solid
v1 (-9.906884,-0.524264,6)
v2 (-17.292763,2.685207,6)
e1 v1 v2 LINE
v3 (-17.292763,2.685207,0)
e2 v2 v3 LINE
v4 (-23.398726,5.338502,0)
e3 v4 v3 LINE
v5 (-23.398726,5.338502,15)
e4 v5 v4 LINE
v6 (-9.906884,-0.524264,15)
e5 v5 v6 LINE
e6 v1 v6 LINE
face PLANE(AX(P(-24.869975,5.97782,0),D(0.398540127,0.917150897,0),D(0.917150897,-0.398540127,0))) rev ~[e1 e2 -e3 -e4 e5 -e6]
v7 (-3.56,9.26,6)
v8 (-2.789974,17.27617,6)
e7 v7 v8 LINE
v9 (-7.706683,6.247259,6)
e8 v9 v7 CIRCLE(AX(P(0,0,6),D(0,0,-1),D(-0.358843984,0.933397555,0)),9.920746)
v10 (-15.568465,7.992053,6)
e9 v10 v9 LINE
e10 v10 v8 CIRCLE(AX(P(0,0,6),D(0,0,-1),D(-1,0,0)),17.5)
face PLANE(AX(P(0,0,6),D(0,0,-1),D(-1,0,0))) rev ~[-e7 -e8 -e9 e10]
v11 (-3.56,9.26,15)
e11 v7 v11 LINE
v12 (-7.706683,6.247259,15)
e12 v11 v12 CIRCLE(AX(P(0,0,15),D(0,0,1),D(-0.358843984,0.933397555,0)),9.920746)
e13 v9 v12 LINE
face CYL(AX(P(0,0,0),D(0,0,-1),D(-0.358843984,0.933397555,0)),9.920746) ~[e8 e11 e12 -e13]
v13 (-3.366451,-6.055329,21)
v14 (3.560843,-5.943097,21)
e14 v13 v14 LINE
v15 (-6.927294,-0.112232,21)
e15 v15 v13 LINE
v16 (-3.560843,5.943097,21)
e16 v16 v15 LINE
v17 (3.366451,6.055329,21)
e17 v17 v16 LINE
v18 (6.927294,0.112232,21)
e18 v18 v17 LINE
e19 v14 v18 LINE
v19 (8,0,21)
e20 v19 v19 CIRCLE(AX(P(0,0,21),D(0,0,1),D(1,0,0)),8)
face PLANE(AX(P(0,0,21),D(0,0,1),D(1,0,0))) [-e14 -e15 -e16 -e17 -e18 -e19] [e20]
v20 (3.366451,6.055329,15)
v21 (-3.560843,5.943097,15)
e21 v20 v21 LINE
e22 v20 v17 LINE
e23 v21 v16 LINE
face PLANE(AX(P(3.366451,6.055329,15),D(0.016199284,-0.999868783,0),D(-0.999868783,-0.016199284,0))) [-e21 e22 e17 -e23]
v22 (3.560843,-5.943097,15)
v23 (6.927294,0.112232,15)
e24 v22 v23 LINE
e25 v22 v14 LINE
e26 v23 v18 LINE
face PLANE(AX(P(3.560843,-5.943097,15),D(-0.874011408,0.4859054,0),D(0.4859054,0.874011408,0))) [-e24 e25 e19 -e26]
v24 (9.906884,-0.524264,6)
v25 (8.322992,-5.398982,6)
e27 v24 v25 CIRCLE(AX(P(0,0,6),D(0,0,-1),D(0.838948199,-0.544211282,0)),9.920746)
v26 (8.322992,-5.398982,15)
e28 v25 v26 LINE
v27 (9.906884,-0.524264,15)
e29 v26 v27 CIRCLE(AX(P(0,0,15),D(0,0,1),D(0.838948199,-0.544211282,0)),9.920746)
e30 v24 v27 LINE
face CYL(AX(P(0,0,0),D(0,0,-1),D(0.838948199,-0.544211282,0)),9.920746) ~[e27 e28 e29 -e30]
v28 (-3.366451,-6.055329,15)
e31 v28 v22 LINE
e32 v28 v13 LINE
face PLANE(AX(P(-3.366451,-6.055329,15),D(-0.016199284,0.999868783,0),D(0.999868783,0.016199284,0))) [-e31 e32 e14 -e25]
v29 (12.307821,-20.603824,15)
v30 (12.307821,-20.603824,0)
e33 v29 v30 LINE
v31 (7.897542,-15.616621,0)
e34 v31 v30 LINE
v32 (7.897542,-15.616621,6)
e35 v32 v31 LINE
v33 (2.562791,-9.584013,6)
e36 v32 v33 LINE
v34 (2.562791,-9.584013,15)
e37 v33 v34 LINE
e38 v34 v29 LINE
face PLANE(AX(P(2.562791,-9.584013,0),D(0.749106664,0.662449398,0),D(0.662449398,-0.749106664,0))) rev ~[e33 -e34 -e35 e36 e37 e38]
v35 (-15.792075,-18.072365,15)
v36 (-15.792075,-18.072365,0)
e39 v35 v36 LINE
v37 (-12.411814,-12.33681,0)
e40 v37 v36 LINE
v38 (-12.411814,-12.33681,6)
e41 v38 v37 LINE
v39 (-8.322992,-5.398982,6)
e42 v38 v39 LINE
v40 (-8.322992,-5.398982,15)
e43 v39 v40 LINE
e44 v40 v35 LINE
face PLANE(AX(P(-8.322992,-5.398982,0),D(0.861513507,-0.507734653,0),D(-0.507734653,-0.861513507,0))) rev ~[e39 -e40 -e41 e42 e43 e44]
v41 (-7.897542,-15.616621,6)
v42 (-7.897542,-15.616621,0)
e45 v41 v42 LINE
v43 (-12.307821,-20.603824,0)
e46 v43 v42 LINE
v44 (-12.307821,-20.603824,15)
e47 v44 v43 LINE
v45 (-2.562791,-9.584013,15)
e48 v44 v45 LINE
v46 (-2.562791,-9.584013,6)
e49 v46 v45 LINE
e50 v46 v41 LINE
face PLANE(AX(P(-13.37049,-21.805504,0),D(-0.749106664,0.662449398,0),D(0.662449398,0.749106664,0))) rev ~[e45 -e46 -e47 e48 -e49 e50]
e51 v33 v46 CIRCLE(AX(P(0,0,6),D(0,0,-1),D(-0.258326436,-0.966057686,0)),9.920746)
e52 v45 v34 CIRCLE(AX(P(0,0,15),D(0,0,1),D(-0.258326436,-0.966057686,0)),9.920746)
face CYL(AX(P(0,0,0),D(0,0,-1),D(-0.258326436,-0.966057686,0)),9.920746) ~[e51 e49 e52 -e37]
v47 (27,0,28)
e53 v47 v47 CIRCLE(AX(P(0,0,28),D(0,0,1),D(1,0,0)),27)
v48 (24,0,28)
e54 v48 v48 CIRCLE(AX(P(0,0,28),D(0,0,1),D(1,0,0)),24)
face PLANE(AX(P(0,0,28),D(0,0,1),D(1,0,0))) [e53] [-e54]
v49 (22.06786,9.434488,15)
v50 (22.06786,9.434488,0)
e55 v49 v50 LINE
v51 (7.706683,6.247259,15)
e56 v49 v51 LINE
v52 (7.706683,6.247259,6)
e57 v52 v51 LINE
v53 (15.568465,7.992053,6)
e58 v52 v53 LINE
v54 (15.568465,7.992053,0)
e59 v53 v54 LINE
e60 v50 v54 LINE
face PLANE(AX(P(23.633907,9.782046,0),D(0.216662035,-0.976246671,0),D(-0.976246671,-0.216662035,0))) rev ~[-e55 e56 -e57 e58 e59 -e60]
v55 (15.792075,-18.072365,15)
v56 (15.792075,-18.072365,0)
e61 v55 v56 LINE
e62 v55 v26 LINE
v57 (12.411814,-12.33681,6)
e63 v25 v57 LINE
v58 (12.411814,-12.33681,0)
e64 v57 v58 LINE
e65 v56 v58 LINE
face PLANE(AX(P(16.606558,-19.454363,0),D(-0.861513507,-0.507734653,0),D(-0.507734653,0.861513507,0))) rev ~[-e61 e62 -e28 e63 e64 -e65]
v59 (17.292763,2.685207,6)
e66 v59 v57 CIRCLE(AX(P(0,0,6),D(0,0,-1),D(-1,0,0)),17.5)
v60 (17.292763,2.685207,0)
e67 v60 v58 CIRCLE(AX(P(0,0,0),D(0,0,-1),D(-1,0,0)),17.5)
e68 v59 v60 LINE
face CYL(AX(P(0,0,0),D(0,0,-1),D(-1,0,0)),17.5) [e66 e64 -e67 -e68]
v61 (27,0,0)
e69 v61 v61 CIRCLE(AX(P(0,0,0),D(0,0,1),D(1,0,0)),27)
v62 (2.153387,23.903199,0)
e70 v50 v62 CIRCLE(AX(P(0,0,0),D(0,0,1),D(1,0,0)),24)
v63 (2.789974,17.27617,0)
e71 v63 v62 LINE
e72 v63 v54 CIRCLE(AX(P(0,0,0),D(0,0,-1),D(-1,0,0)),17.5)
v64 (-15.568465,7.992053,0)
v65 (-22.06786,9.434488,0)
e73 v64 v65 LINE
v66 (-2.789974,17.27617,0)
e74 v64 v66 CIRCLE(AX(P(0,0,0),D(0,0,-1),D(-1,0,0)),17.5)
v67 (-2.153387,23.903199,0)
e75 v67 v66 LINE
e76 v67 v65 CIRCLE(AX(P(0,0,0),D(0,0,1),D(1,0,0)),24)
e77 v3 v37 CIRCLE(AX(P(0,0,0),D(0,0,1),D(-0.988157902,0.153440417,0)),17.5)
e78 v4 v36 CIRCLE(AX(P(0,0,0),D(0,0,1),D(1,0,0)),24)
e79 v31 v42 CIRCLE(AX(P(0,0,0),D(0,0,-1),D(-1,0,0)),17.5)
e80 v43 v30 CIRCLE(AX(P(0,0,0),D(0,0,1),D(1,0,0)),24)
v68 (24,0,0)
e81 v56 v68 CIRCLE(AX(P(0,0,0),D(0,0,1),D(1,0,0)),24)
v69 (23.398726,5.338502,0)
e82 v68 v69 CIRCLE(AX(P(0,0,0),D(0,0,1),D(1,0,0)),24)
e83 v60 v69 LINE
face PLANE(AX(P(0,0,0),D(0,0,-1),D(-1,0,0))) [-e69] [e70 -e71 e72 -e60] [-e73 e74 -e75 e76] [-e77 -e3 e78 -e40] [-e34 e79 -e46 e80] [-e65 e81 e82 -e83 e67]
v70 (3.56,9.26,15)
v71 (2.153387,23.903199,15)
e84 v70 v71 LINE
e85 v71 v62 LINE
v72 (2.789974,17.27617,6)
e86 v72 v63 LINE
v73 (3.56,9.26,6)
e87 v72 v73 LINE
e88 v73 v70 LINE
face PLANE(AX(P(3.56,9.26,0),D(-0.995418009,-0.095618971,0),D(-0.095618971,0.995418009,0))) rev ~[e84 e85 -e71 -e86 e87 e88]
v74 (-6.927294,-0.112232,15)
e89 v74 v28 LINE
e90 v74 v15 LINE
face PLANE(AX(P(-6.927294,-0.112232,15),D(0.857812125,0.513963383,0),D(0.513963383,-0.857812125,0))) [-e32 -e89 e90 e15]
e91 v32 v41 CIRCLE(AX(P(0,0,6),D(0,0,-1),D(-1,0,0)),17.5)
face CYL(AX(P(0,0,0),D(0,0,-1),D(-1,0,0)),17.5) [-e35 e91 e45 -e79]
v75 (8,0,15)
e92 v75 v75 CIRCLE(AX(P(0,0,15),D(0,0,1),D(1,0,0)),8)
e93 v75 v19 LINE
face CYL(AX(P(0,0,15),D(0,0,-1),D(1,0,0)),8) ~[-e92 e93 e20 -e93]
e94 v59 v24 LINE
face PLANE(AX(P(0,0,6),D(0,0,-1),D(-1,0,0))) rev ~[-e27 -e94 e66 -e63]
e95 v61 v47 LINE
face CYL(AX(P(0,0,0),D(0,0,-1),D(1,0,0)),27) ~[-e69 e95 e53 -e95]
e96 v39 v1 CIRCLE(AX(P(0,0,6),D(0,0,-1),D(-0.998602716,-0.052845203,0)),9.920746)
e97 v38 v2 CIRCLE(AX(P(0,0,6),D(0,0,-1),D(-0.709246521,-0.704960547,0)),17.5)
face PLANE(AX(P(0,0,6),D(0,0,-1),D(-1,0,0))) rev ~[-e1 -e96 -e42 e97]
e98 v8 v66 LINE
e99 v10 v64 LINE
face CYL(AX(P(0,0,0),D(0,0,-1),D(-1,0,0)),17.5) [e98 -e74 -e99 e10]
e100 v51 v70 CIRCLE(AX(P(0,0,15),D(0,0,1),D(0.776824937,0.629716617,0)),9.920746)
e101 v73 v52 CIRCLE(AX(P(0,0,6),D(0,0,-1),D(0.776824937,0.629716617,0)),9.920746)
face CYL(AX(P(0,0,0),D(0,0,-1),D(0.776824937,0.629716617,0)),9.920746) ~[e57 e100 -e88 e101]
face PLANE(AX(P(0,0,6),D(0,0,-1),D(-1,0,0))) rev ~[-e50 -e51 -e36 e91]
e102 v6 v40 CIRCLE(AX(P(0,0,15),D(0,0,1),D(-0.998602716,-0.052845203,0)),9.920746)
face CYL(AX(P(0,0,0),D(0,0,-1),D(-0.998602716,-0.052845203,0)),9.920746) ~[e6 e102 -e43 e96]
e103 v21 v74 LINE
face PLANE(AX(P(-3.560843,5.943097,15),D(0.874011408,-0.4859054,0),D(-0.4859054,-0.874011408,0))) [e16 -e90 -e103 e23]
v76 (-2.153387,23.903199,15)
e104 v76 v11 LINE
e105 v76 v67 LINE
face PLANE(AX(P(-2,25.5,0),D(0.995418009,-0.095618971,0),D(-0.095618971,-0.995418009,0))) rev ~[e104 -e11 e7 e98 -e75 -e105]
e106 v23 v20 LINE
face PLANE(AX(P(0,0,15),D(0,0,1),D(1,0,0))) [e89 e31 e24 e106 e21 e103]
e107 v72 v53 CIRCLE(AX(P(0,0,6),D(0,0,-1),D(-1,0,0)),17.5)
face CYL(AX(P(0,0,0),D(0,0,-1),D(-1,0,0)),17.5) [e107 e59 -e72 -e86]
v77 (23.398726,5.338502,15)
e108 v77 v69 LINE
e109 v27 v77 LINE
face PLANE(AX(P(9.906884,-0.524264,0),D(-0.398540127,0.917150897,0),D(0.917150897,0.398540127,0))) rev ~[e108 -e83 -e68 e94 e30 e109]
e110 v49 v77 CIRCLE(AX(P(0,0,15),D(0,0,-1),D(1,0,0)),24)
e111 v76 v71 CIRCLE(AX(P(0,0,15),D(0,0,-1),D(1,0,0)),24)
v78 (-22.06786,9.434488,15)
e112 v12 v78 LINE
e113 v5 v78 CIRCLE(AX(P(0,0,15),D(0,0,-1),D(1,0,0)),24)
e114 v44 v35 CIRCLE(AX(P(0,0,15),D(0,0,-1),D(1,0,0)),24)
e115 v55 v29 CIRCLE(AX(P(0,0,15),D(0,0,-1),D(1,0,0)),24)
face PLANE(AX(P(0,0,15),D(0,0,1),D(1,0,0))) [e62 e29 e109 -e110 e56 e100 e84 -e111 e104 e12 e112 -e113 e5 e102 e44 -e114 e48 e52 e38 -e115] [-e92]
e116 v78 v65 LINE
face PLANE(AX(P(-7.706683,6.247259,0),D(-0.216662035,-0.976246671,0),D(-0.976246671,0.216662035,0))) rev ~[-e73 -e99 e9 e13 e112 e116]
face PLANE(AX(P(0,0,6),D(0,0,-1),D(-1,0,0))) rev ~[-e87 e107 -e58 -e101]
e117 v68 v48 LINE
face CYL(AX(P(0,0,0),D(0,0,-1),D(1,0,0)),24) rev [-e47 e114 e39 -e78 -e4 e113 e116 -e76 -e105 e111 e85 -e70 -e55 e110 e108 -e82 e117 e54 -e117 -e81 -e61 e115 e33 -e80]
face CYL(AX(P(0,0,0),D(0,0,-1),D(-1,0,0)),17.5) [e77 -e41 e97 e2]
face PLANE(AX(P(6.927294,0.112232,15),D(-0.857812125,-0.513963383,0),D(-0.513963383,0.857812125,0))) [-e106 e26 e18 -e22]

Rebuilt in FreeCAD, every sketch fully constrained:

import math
import FreeCAD as App
import Part
import Sketcher

V = App.Vector
Q = App.Units.Quantity


def add_polygon(sketch, points):
    """Adds a closed chain of lines whose ends are joined by coincident constraints."""
    first, n = sketch.GeometryCount, len(points)
    for a, b in zip(points, points[1:] + points[:1]):
        sketch.addGeometry(Part.LineSegment(App.Vector(*a, 0), App.Vector(*b, 0)), False)
    for i in range(n):
        sketch.addConstraint(Sketcher.Constraint("Coincident", first + i, 2, first + (i + 1) % n, 1))

doc = App.newDocument("Part")
params = doc.addObject("Spreadsheet::Sheet", "Params")
for row, (alias, value) in enumerate([
    ("sketch1_diameter", "54 mm"),
    ("sketch1_diameter2", "48 mm"),
    ("pad1_length", "28 mm"),
    ("sketch2_width", "4 mm"),
    ("sketch2_length", "4 mm"),
    ("pad2_length", "15 mm"),
    ("sketch3_diameter", "16 mm"),
    ("pad3_length", "6 mm"),
    ("sketch4_diameter", "35 mm"),
    ("pad4_length", "6 mm"),
], start=1):
    params.set(f"A{row}", alias)
    params.set(f"B{row}", "=" + value)
    params.setAlias(f"B{row}", alias)

body = doc.addObject("PartDesign::Body", "Body")

sketch1 = doc.addObject("Sketcher::SketchObject", "Sketch")
body.addObject(sketch1)
sketch1.AttachmentSupport = (doc.XY_Plane, [""])
sketch1.MapMode = "FlatFace"
sketch1.addGeometry([
    Part.Circle(V(0, 0, 0), V(0, 0, 1), 27),
    Part.Circle(V(0, 0, 0), V(0, 0, 1), 24),
], False)
sketch1.addConstraint([
    Sketcher.Constraint("Coincident", 0, 3, -1, 1),
    Sketcher.Constraint("Coincident", 1, 3, -1, 1),
    Sketcher.Constraint("Diameter", 0, Q("54 mm")),
    Sketcher.Constraint("Diameter", 1, Q("48 mm")),
])
sketch1.setExpression("Constraints[2]", "Params.sketch1_diameter")
sketch1.setExpression("Constraints[3]", "Params.sketch1_diameter2")
pad1 = doc.addObject("PartDesign::Pad", "Pad")
body.addObject(pad1)
pad1.Profile = sketch1
pad1.setExpression("Length", "Params.pad1_length")

sketch2 = doc.addObject("Sketcher::SketchObject", "Sketch001")
body.addObject(sketch2)
sketch2.AttachmentSupport = (doc.XY_Plane, [""])
sketch2.MapMode = "FlatFace"
sketch2.addGeometry([
    Part.LineSegment(V(-2, 25.5, 0), V(-3.6, 9.3, 0)),
    Part.ArcOfCircle(Part.Circle(V(0, 0, 0), V(0, 0, 1), 9.9), math.radians(111), math.radians(141)),
    Part.LineSegment(V(-7.7, 6.2, 0), V(-23.6, 9.8, 0)),
    Part.LineSegment(V(-23.6, 9.8, 0), V(-24.9, 6, 0)),
    Part.LineSegment(V(-24.9, 6, 0), V(-9.9, -0.5, 0)),
    Part.ArcOfCircle(Part.Circle(V(0, 0, 0), V(0, 0, 1), 9.9), math.radians(-177), math.radians(-147)),
    Part.LineSegment(V(-8.3, -5.4, 0), V(-16.6, -19.5, 0)),
    Part.LineSegment(V(-16.6, -19.5, 0), V(-13.4, -21.8, 0)),
    Part.LineSegment(V(-13.4, -21.8, 0), V(-2.6, -9.6, 0)),
    Part.ArcOfCircle(Part.Circle(V(0, 0, 0), V(0, 0, 1), 9.9), math.radians(-105), math.radians(-75)),
    Part.LineSegment(V(2.6, -9.6, 0), V(13.4, -21.8, 0)),
    Part.LineSegment(V(13.4, -21.8, 0), V(16.6, -19.5, 0)),
    Part.LineSegment(V(16.6, -19.5, 0), V(8.3, -5.4, 0)),
    Part.ArcOfCircle(Part.Circle(V(0, 0, 0), V(0, 0, 1), 9.9), math.radians(-33), math.radians(-3)),
    Part.LineSegment(V(9.9, -0.5, 0), V(24.9, 6, 0)),
    Part.LineSegment(V(24.9, 6, 0), V(23.6, 9.8, 0)),
    Part.LineSegment(V(23.6, 9.8, 0), V(7.7, 6.2, 0)),
    Part.ArcOfCircle(Part.Circle(V(0, 0, 0), V(0, 0, 1), 9.9), math.radians(39), math.radians(69)),
    Part.LineSegment(V(3.6, 9.3, 0), V(2, 25.5, 0)),
    Part.LineSegment(V(2, 25.5, 0), V(-2, 25.5, 0)),
], False)
sketch2.addConstraint([
    Sketcher.Constraint("Coincident", 0, 2, 1, 1),
    Sketcher.Constraint("Coincident", 1, 2, 2, 1),
    Sketcher.Constraint("Coincident", 2, 2, 3, 1),
    Sketcher.Constraint("Coincident", 3, 2, 4, 1),
    Sketcher.Constraint("Coincident", 4, 2, 5, 1),
    Sketcher.Constraint("Coincident", 5, 2, 6, 1),
    Sketcher.Constraint("Coincident", 6, 2, 7, 1),
    Sketcher.Constraint("Coincident", 7, 2, 8, 1),
    Sketcher.Constraint("Coincident", 8, 2, 9, 1),
    Sketcher.Constraint("Coincident", 9, 2, 10, 1),
    Sketcher.Constraint("Coincident", 10, 2, 11, 1),
    Sketcher.Constraint("Coincident", 11, 2, 12, 1),
    Sketcher.Constraint("Coincident", 12, 2, 13, 1),
    Sketcher.Constraint("Coincident", 13, 2, 14, 1),
    Sketcher.Constraint("Coincident", 14, 2, 15, 1),
    Sketcher.Constraint("Coincident", 15, 2, 16, 1),
    Sketcher.Constraint("Coincident", 16, 2, 17, 1),
    Sketcher.Constraint("Coincident", 17, 2, 18, 1),
    Sketcher.Constraint("Coincident", 18, 2, 19, 1),
    Sketcher.Constraint("Coincident", 19, 2, 0, 1),
    Sketcher.Constraint("Horizontal", 19),
    Sketcher.Constraint("Coincident", 1, 3, -1, 1),
    Sketcher.Constraint("Coincident", 5, 3, -1, 1),
    Sketcher.Constraint("Coincident", 9, 3, -1, 1),
    Sketcher.Constraint("Coincident", 13, 3, -1, 1),
    Sketcher.Constraint("Coincident", 17, 3, -1, 1),
    Sketcher.Constraint("Equal", 1, 5),
    Sketcher.Constraint("Equal", 5, 9),
    Sketcher.Constraint("Equal", 9, 13),
    Sketcher.Constraint("Equal", 13, 17),
    Sketcher.Constraint("Symmetric", 7, 2, 10, 2, -2),
    Sketcher.Constraint("Symmetric", 6, 2, 11, 2, -2),
    Sketcher.Constraint("Symmetric", 3, 2, 14, 2, -2),
    Sketcher.Constraint("Symmetric", 2, 2, 15, 2, -2),
    Sketcher.Constraint("Horizontal", 8, 2, 9, 2),
    Sketcher.Constraint("Horizontal", 5, 2, 12, 2),
    Sketcher.Constraint("Horizontal", 4, 2, 13, 2),
    Sketcher.Constraint("Horizontal", 1, 2, 16, 2),
    Sketcher.Constraint("Horizontal", 0, 2, 17, 2),
    Sketcher.Constraint("Equal", 0, 2),
    Sketcher.Constraint("Equal", 2, 4),
    Sketcher.Constraint("Equal", 4, 6),
    Sketcher.Constraint("Equal", 3, 7),
    Sketcher.Constraint("Equal", 6, 8),
    Sketcher.Constraint("Equal", 16, 18),
    Sketcher.Constraint("DistanceX", 19, 2, 19, 1, Q("4 mm")),
    Sketcher.Constraint("Angle", 3, Q("-108 deg")),
    Sketcher.Constraint("Angle", 7, Q("-36 deg")),
    Sketcher.Constraint("Distance", 3, Q("4 mm")),
    Sketcher.Constraint("DistanceY", -1, 1, 18, 2, Q("25.5 mm")),
    Sketcher.Constraint("DistanceX", 0, 2, -1, 1, Q("3.56 mm")),
    Sketcher.Constraint("DistanceY", -1, 1, 0, 2, Q("9.26 mm")),
    Sketcher.Constraint("DistanceX", 4, 2, 1, 2, Q("2.200201 mm")),
    Sketcher.Constraint("DistanceY", 6, 2, 4, 2, Q("18.930099 mm")),
    Sketcher.Constraint("DistanceX", 7, 2, 5, 2, Q("5.047498 mm")),
    Sketcher.Constraint("DistanceX", 5, 2, 8, 2, Q("5.760201 mm")),
])
sketch2.setExpression("Constraints[45]", "Params.sketch2_width")
sketch2.setExpression("Constraints[48]", "Params.sketch2_length")
pad2 = doc.addObject("PartDesign::Pad", "Pad001")
body.addObject(pad2)
pad2.Profile = sketch2
pad2.setExpression("Length", "Params.pad2_length")

sketch3 = doc.addObject("Sketcher::SketchObject", "Sketch002")
body.addObject(sketch3)
sketch3.AttachmentSupport = (doc.XY_Plane, [""])
sketch3.MapMode = "FlatFace"
sketch3.AttachmentOffset = App.Placement(V(0, 0, 15), App.Rotation())
sketch3.addGeometry(Part.Circle(V(0, 0, 0), V(0, 0, 1), 8), False)
add_polygon(sketch3, [(7, 0), (4, -6), (-3, -6), (-7, 0), (-4, 6), (3, 6)])
sketch3.addConstraint([
    Sketcher.Constraint("Coincident", 0, 3, -1, 1),
    Sketcher.Constraint("Symmetric", 1, 2, 4, 2, -1, 1),
    Sketcher.Constraint("Symmetric", 2, 2, 5, 2, -1, 1),
    Sketcher.Constraint("Symmetric", 3, 2, 6, 2, -1, 1),
    Sketcher.Constraint("Equal", 1, 2),
    Sketcher.Constraint("Equal", 2, 3),
    Sketcher.Constraint("Diameter", 0, Q("16 mm")),
    Sketcher.Constraint("DistanceX", 2, 2, -1, 1, Q("3.366451 mm")),
    Sketcher.Constraint("DistanceY", 2, 2, -1, 1, Q("6.055329 mm")),
    Sketcher.Constraint("DistanceY", 3, 2, -1, 1, Q("0.112232 mm")),
    Sketcher.Constraint("DistanceY", 2, 2, 1, 2, Q("0.112232 mm")),
])
sketch3.setExpression("Constraints[12]", "Params.sketch3_diameter")
pad3 = doc.addObject("PartDesign::Pad", "Pad002")
body.addObject(pad3)
pad3.Profile = sketch3
pad3.setExpression("Length", "Params.pad3_length")

sketch4 = doc.addObject("Sketcher::SketchObject", "Sketch003")
body.addObject(sketch4)
sketch4.AttachmentSupport = (doc.XY_Plane, [""])
sketch4.MapMode = "FlatFace"
sketch4.addGeometry(Part.Circle(V(0, 0, 0), V(0, 0, 1), 18), False)
sketch4.addConstraint([
    Sketcher.Constraint("Coincident", 0, 3, -1, 1),
    Sketcher.Constraint("Diameter", 0, Q("35 mm")),
])
sketch4.setExpression("Constraints[1]", "Params.sketch4_diameter")
pad4 = doc.addObject("PartDesign::Pad", "Pad003")
body.addObject(pad4)
pad4.Profile = sketch4
pad4.setExpression("Length", "Params.pad4_length")

doc.recompute()
